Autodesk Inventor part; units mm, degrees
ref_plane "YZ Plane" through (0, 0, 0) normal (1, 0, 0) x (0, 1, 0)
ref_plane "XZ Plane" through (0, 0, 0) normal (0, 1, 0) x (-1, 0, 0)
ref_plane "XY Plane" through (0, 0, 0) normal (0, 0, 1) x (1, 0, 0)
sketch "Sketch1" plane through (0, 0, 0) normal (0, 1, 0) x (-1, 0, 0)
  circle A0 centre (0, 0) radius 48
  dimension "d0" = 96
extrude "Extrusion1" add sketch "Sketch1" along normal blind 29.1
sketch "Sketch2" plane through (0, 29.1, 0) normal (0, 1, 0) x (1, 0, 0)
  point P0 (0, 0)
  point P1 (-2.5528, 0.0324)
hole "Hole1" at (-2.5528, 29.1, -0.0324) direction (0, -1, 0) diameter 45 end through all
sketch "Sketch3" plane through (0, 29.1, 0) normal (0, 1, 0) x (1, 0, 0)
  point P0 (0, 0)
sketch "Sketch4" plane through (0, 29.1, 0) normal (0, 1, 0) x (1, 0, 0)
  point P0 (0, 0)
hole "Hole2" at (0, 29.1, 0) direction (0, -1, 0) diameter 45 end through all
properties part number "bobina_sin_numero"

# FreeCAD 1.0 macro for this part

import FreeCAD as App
import Part
import Sketcher

doc = App.newDocument("Part")
params = doc.addObject("Spreadsheet::Sheet", "Params")
for row, (alias, value) in enumerate([
    ("sketch1_diameter", "96 mm"),
    ("pad1_length", "29.1 mm"),
    ("sketch2_diameter", "45 mm"),
    ("hole_diameter", "45 mm"),
    ("sketch3_diameter", "45 mm"),
    ("hole2_diameter", "45 mm"),
], start=1):
    params.set(f"A{row}", alias)
    params.set(f"B{row}", "=" + value)
    params.setAlias(f"B{row}", alias)

body = doc.addObject("PartDesign::Body", "Body")

# Sketch on XZ plane
sketch1 = body.newObject("Sketcher::SketchObject", "Sketch")
sketch1.AttachmentSupport = (doc.getObject("XZ_Plane"), [""])
sketch1.MapMode = "FlatFace"
sketch1.addGeometry(Part.Circle(App.Vector(0, 0, 0), App.Vector(0, 0, 1), 48), False)
sketch1.addConstraint([
    Sketcher.Constraint("Coincident", 0, 3, -1, 1),
    Sketcher.Constraint("Diameter", 0, 96.0),
])
sketch1.setExpression("Constraints[1]", "Params.sketch1_diameter")
pad1 = body.newObject("PartDesign::Pad", "Pad")
pad1.Profile = sketch1
pad1.setExpression("Length", "Params.pad1_length")
pad1.Reversed = True

# Sketch on XZ plane
sketch2 = body.newObject("Sketcher::SketchObject", "Sketch001")
sketch2.AttachmentSupport = (doc.getObject("XZ_Plane"), [""])
sketch2.MapMode = "FlatFace"
sketch2.AttachmentOffset = App.Placement(App.Vector(0, 0, -29.1), App.Rotation())
sketch2.addGeometry(Part.Circle(App.Vector(-3, 0, 0), App.Vector(0, 0, 1), 22), False)
sketch2.addConstraint([
    Sketcher.Constraint("Diameter", 0, 45.0),
    Sketcher.Constraint("DistanceX", 0, 3, -1, 1, 2.5528),
    Sketcher.Constraint("DistanceY", 0, 3, -1, 1, 0.0324),
])
sketch2.setExpression("Constraints[0]", "Params.sketch2_diameter")
doc.recompute()
hole = body.newObject("PartDesign::Hole", "Hole")
hole.Profile = sketch2
hole.ThreadType = "None"
hole.setExpression("Diameter", "Params.hole_diameter")
hole.DepthType = "ThroughAll"
hole.Reversed = True

# Sketch on XZ plane
sketch3 = body.newObject("Sketcher::SketchObject", "Sketch002")
sketch3.AttachmentSupport = (doc.getObject("XZ_Plane"), [""])
sketch3.MapMode = "FlatFace"
sketch3.AttachmentOffset = App.Placement(App.Vector(0, 0, -29.1), App.Rotation())
sketch3.addGeometry(Part.Circle(App.Vector(0, 0, 0), App.Vector(0, 0, 1), 22), False)
sketch3.addConstraint([
    Sketcher.Constraint("Coincident", 0, 3, -1, 1),
    Sketcher.Constraint("Diameter", 0, 45.0),
])
sketch3.setExpression("Constraints[1]", "Params.sketch3_diameter")
doc.recompute()
hole2 = body.newObject("PartDesign::Hole", "Hole001")
hole2.Profile = sketch3
hole2.ThreadType = "None"
hole2.setExpression("Diameter", "Params.hole2_diameter")
hole2.DepthType = "ThroughAll"
hole2.Reversed = True

doc.recompute()
